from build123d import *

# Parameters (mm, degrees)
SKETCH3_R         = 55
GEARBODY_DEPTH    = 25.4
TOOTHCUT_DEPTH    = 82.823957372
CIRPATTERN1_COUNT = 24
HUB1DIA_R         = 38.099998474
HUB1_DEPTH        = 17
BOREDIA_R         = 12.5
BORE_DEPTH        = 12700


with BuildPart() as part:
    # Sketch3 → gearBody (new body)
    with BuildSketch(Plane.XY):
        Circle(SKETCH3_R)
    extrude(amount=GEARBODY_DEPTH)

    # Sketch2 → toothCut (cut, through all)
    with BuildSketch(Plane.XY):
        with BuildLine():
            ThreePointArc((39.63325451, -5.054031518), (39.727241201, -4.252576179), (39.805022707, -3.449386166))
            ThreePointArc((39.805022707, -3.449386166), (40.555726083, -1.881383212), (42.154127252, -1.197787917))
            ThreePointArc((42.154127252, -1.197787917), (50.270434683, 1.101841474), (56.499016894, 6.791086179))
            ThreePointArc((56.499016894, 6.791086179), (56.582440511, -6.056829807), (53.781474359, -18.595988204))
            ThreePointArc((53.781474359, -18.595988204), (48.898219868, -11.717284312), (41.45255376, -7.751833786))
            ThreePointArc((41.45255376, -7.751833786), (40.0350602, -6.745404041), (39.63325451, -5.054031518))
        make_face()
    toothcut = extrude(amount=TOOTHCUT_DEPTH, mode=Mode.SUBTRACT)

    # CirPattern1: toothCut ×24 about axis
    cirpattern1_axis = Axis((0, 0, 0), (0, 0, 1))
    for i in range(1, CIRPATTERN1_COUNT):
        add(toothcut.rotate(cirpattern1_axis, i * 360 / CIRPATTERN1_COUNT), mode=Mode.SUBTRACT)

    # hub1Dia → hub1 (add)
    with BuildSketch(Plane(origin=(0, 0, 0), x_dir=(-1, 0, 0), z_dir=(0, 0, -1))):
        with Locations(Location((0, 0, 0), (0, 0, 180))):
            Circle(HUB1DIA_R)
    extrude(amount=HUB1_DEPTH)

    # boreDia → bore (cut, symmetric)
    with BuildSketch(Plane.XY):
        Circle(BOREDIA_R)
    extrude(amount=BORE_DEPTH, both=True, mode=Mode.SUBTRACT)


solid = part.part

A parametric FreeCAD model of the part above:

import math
import FreeCAD as App
import Part
import Sketcher
from FreeCAD import Vector
Q = App.Units.Quantity

doc = App.newDocument("Part")
body = doc.addObject("PartDesign::Body", "Body")

# Sketch on XY plane
sketch1 = body.newObject("Sketcher::SketchObject", "Sketch")
sketch1.AttachmentSupport = (doc.getObject("XY_Plane"), [""])
sketch1.MapMode = "FlatFace"
sketch1.addGeometry(Part.Circle(Vector(0, 0, 0), Vector(0, 0, 1), 55), False)
sketch1.addConstraint([
    Sketcher.Constraint("Coincident", 0, 3, -1, 1),
    Sketcher.Constraint("Diameter", 0, Q("110 mm")),
])
pad1 = body.newObject("PartDesign::Pad", "Pad")
pad1.Profile = sketch1
pad1.Length = Q("1 in")

# Sketch on XY plane
sketch2 = body.newObject("Sketcher::SketchObject", "Sketch001")
sketch2.AttachmentSupport = (doc.getObject("XY_Plane"), [""])
sketch2.MapMode = "FlatFace"
sketch2.addGeometry([
    Part.ArcOfCircle(Part.Circle(Vector(-0.000002, 0, 0), Vector(0, 0, 1), 39.954202), math.radians(-7.267134), math.radians(-4.952711)),  # 0
    Part.ArcOfCircle(Part.Circle(Vector(42.080413, -5.366093, 0), Vector(0, 0, 1), 2.466975), math.radians(172.732866), math.radians(255.255709)),  # 1
    Part.ArcOfCircle(Part.Circle(Vector(36.784471, -25.48963, 0), Vector(0, 0, 1), 18.341767), math.radians(22.076483), math.radians(75.255709)),  # 2
    Part.ArcOfCircle(Part.Circle(Vector(0, 0, 0), Vector(0, 0, 1), 56.905692), math.radians(-19.07382), math.radians(6.853974)),  # 3
    Part.ArcOfCircle(Part.Circle(Vector(41.346252, 17.126178, 0), Vector(0, 0, 1), 18.341767), math.radians(-87.475554), math.radians(-34.296328)),  # 4
    Part.ArcOfCircle(Part.Circle(Vector(42.262787, -3.662369, 0), Vector(0, 0, 1), 2.466975), math.radians(92.524446), math.radians(175.047289)),  # 5
], False)
sketch2.addConstraint([
    Sketcher.Constraint("Tangent", 0, 1, 1, 1),
    Sketcher.Constraint("Tangent", 1, 2, 2, 2),
    Sketcher.Constraint("Coincident", 2, 1, 3, 1),
    Sketcher.Constraint("Coincident", 3, 2, 4, 2),
    Sketcher.Constraint("Tangent", 4, 1, 5, 1),
    Sketcher.Constraint("Tangent", 5, 2, 0, 2),
    Sketcher.Constraint("Coincident", 0, 3, -1, 1),
    Sketcher.Constraint("Coincident", 3, 3, -1, 1),
    Sketcher.Constraint("Equal", 2, 4),
    Sketcher.Constraint("Equal", 1, 5),
    Sketcher.Constraint("Radius", 0, Q("1.5730001 in")),
    Sketcher.Constraint("Radius", 3, Q("56.905692 mm")),
    Sketcher.Constraint("Radius", 1, Q("2.466975 mm")),
    Sketcher.Constraint("Radius", 2, Q("18.341767 mm")),
    Sketcher.Constraint("DistanceY", 2, 3, 0, 1, Q("20.435598 mm")),
    Sketcher.Constraint("DistanceX", 0, 1, 1, 2, Q("1.819299 mm")),
    Sketcher.Constraint("DistanceX", 4, 3, 1, 2, Q("0.106301 mm")),
    Sketcher.Constraint("DistanceY", 5, 2, 4, 1, Q("2.251598 mm")),
])
pocket1 = body.newObject("PartDesign::Pocket", "Pocket")
pocket1.Profile = sketch2
pocket1.Type = "ThroughAll"
pocket1.Reversed = True
doc.recompute()

polarpattern = body.newObject("PartDesign::PolarPattern", "PolarPattern")
polarpattern.Originals = [pocket1]
polarpattern.Axis = (doc.getObject("Z_Axis"), [""])
polarpattern.Angle = 360
polarpattern.Occurrences = 24
body.Tip = polarpattern

# Sketch on XY plane
sketch3 = body.newObject("Sketcher::SketchObject", "Sketch002")
sketch3.AttachmentSupport = (doc.getObject("XY_Plane"), [""])
sketch3.MapMode = "FlatFace"
sketch3.addGeometry(Part.Circle(Vector(0, 0, 0), Vector(0, 0, 1), 38.099998), False)
sketch3.addConstraint([
    Sketcher.Constraint("Coincident", 0, 3, -1, 1),
    Sketcher.Constraint("Diameter", 0, Q("2.9999999 in")),
])
pad2 = body.newObject("PartDesign::Pad", "Pad001")
pad2.Profile = sketch3
pad2.Length = 17
pad2.Reversed = True

# Sketch on XY plane
sketch4 = body.newObject("Sketcher::SketchObject", "Sketch003")
sketch4.AttachmentSupport = (doc.getObject("XY_Plane"), [""])
sketch4.MapMode = "FlatFace"
sketch4.addGeometry(Part.Circle(Vector(0, 0, 0), Vector(0, 0, 1), 12.5), False)
sketch4.addConstraint([
    Sketcher.Constraint("Coincident", 0, 3, -1, 1),
    Sketcher.Constraint("Diameter", 0, Q("25 mm")),
])
pocket2 = body.newObject("PartDesign::Pocket", "Pocket001")
pocket2.Profile = sketch4
pocket2.Length = Q("1000 in")
pocket2.Midplane = True

doc.recompute()
